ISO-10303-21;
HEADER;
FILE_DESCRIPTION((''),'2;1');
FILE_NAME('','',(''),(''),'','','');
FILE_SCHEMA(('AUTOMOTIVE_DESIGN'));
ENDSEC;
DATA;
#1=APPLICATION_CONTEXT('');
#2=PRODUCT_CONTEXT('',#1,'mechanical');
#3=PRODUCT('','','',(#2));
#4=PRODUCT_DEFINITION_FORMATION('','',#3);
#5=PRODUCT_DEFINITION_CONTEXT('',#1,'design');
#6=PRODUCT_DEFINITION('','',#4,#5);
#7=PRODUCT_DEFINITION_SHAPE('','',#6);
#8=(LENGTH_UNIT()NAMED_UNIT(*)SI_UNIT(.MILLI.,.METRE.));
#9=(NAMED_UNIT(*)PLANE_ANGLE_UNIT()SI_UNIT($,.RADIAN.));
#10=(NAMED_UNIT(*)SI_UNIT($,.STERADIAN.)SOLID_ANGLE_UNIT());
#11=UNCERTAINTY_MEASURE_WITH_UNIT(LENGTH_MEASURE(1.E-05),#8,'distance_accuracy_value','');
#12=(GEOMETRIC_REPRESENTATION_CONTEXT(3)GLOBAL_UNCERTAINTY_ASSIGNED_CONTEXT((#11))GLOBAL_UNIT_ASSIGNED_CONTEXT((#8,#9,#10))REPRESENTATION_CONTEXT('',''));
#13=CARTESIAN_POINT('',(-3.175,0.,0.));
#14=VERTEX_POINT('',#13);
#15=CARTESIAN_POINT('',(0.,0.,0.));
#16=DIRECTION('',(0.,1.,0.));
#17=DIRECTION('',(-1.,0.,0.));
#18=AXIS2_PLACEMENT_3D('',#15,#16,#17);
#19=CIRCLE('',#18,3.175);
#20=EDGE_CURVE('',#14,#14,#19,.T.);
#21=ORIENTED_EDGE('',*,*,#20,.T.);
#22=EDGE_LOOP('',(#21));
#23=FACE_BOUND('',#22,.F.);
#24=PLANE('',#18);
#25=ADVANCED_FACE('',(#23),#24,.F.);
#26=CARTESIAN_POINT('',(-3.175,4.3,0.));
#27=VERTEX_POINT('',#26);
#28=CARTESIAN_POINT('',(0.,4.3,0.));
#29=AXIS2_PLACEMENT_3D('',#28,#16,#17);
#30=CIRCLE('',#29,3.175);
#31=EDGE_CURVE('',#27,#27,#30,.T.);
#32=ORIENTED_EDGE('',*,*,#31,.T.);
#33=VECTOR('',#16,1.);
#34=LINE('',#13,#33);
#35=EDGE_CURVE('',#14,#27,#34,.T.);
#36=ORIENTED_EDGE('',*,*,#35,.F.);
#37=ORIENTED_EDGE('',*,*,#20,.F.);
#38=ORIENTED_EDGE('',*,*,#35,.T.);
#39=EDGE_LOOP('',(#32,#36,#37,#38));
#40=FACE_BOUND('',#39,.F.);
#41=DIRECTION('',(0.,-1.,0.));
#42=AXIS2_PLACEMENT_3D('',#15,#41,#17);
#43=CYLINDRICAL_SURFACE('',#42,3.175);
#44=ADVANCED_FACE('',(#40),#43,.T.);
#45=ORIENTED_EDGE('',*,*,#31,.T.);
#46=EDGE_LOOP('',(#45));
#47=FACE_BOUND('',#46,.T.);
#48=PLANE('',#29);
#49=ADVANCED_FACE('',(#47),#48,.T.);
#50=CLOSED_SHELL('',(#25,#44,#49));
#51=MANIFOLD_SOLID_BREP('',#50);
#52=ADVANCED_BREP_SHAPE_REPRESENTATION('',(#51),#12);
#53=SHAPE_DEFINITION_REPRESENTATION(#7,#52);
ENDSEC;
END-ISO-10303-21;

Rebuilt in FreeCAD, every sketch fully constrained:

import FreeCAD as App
import Part
import Sketcher

V = App.Vector
Q = App.Units.Quantity

doc = App.newDocument("Part")
body = doc.addObject("PartDesign::Body", "Body")

# Sketch on XZ plane
sketch1 = doc.addObject("Sketcher::SketchObject", "Sketch")
body.addObject(sketch1)
sketch1.AttachmentSupport = (doc.XZ_Plane, [""])
sketch1.MapMode = "FlatFace"
sketch1.addGeometry(Part.Circle(V(0, 0, 0), V(0, 0, 1), 3.2), False)
sketch1.addConstraint([
    Sketcher.Constraint("Coincident", 0, 3, -1, 1),
    Sketcher.Constraint("Diameter", 0, Q("0.25 in")),
])
pad1 = doc.addObject("PartDesign::Pad", "Pad")
body.addObject(pad1)
pad1.Profile = sketch1
pad1.Length = Q("0.1692913 in")
pad1.Reversed = True

doc.recompute()
